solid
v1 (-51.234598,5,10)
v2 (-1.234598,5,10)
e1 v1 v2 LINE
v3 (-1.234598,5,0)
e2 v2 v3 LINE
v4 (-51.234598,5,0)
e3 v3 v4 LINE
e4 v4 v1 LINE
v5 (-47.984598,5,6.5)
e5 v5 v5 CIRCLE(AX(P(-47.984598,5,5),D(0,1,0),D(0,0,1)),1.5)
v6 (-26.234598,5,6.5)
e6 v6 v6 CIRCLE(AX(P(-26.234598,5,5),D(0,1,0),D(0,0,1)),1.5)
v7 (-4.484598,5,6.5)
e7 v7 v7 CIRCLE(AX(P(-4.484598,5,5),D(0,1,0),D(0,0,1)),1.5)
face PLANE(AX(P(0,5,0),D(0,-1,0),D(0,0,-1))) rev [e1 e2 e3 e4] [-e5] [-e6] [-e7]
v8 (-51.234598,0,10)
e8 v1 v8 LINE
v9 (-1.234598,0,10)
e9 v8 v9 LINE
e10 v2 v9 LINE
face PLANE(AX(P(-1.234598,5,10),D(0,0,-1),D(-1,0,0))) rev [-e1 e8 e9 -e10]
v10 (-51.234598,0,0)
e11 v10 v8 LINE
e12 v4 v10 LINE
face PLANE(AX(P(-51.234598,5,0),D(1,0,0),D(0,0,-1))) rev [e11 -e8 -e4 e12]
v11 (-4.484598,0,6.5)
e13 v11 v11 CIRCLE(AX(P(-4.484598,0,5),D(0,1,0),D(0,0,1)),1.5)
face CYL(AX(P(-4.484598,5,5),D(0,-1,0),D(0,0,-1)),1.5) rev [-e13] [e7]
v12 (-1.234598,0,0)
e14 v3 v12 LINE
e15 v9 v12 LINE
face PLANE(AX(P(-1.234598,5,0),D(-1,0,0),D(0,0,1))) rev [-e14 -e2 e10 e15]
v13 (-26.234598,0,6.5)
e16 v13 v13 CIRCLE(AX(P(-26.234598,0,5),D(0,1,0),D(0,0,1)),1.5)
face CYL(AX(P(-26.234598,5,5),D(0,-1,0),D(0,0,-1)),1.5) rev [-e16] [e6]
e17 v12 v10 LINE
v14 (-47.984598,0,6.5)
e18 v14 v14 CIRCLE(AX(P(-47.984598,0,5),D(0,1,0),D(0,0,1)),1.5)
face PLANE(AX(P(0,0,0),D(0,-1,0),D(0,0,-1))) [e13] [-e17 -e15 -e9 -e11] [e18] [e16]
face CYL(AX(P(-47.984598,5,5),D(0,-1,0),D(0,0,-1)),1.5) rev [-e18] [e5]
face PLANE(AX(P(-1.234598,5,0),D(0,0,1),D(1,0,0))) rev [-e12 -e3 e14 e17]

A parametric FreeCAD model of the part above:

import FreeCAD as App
import Part
import Sketcher

V = App.Vector


def add_polygon(sketch, points):
    """Adds a closed chain of lines whose ends are joined by coincident constraints."""
    first, n = sketch.GeometryCount, len(points)
    for a, b in zip(points, points[1:] + points[:1]):
        sketch.addGeometry(Part.LineSegment(App.Vector(*a, 0), App.Vector(*b, 0)), False)
    for i in range(n):
        sketch.addConstraint(Sketcher.Constraint("Coincident", first + i, 2, first + (i + 1) % n, 1))

doc = App.newDocument("Part")
body = doc.addObject("PartDesign::Body", "Body")

# Sketch on XZ plane
sketch1 = doc.addObject("Sketcher::SketchObject", "Sketch")
body.addObject(sketch1)
sketch1.AttachmentSupport = (doc.XZ_Plane, [""])
sketch1.MapMode = "FlatFace"
add_polygon(sketch1, [(-51.2, 0), (-51.2, 10), (-1.2, 10), (-1.2, 0)])  # lines 0-3
sketch1.addGeometry(Part.Circle(V(-48, 5, 0), V(0, 0, 1), 1.5), False)  # 4
sketch1.addGeometry(Part.Circle(V(-26.2, 5, 0), V(0, 0, 1), 1.5), False)  # 5
sketch1.addGeometry(Part.Circle(V(-4.5, 5, 0), V(0, 0, 1), 1.5), False)  # 6
sketch1.addConstraint([
    Sketcher.Constraint("Vertical", 0),
    Sketcher.Constraint("Horizontal", 1),
    Sketcher.Constraint("Vertical", 2),
    Sketcher.Constraint("Horizontal", 3),
    Sketcher.Constraint("Equal", 4, 5),
    Sketcher.Constraint("Equal", 5, 6),
    Sketcher.Constraint("PointOnObject", 2, 2, -1),
    Sketcher.Constraint("Horizontal", 4, 3, 5, 3),
    Sketcher.Constraint("Horizontal", 5, 3, 6, 3),
    Sketcher.Constraint("Diameter", 4, 3.0),
    Sketcher.Constraint("DistanceX", 1, 1, 1, 2, 50.0),
    Sketcher.Constraint("DistanceY", 0, 1, 0, 2, 10.0),
    Sketcher.Constraint("DistanceY", -1, 1, 4, 3, 5.0),
    Sketcher.Constraint("DistanceX", 0, 2, 5, 3, 25.0),
    Sketcher.Constraint("DistanceX", 4, 3, 6, 3, 43.5),
    Sketcher.Constraint("DistanceX", 4, 3, 5, 3, 21.75),
    Sketcher.Constraint("DistanceX", 4, 3, -1, 1, 47.984598),
])
pad1 = doc.addObject("PartDesign::Pad", "Pad")
body.addObject(pad1)
pad1.Profile = sketch1
pad1.Length = 5
pad1.Reversed = True

doc.recompute()
